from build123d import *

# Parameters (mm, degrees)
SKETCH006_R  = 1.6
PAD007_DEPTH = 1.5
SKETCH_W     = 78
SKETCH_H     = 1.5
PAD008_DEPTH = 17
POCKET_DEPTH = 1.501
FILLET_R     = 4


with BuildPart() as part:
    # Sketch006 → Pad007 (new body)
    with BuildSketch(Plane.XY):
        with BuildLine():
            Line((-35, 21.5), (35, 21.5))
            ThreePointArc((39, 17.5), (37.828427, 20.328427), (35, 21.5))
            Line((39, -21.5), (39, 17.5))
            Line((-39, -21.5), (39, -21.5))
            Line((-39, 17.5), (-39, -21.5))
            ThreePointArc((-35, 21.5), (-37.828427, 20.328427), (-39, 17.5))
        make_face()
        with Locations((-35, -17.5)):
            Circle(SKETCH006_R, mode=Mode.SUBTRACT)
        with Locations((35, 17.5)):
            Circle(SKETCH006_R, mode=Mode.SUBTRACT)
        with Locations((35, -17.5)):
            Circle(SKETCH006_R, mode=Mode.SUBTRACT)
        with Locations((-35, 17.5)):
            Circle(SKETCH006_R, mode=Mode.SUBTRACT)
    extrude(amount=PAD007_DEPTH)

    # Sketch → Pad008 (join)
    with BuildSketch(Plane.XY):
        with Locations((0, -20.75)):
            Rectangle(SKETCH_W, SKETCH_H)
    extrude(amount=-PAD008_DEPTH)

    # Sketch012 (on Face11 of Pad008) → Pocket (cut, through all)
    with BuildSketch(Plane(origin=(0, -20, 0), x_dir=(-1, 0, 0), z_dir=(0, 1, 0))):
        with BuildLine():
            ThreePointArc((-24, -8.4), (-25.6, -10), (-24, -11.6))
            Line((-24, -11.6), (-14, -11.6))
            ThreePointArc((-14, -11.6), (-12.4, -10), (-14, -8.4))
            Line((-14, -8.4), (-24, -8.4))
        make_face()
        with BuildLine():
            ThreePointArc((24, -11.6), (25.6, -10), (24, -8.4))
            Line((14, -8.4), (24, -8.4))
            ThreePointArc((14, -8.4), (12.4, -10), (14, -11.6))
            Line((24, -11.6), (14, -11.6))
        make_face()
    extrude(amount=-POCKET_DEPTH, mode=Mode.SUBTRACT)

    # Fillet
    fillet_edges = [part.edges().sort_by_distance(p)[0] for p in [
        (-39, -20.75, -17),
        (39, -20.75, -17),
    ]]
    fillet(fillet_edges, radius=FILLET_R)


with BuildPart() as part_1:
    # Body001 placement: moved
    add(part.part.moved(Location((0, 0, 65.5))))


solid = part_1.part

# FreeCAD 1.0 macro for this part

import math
import FreeCAD as App
import Part
import Sketcher

V = App.Vector
Q = App.Units.Quantity


def edges_at(feature, points):
    """Names of the edges that pass closest to the given points."""
    edges = feature.Shape.Edges
    near = lambda p: min(range(len(edges)), key=lambda i: edges[i].distToShape(Part.Vertex(*p))[0])
    return sorted({f"Edge{near(p) + 1}" for p in points})

doc = App.newDocument("Part")
params = doc.addObject("Spreadsheet::Sheet", "Params")
for row, (alias, value) in enumerate([
    ("sketch1_radius", "4 mm"),
    ("sketch1_diameter", "3.2 mm"),
    ("sketch1_width", "70 mm"),
    ("sketch1_height", "39 mm"),
    ("pad1_length", "1.5 mm"),
    ("sketch2_width", "78 mm"),
    ("sketch2_height", "1.5 mm"),
    ("pad2_length", "17 mm"),
    ("sketch3_radius", "1.6 mm"),
    ("sketch3_width", "10 mm"),
    ("fillet_radius", "4 mm"),
], start=1):
    params.set(f"A{row}", alias)
    params.set(f"B{row}", "=" + value)
    params.setAlias(f"B{row}", alias)

body = doc.addObject("PartDesign::Body", "Body")

# Sketch on XY plane
sketch1 = body.newObject("Sketcher::SketchObject", "Sketch")
sketch1.AttachmentSupport = (doc.getObject("XY_Plane"), [""])
sketch1.MapMode = "FlatFace"
sketch1.addGeometry([
    Part.LineSegment(V(35, 21.5, 0), V(-35, 21.5, 0)),  # 0
    Part.ArcOfCircle(Part.Circle(V(-35, 17.5, 0), V(0, 0, 1), 4), math.radians(90), math.radians(180)),  # 1
    Part.LineSegment(V(-39, 17.5, 0), V(-39, -21.5, 0)),  # 2
    Part.LineSegment(V(-39, -21.5, 0), V(39, -21.5, 0)),  # 3
    Part.LineSegment(V(39, -21.5, 0), V(39, 17.5, 0)),  # 4
    Part.ArcOfCircle(Part.Circle(V(35, 17.5, 0), V(0, 0, 1), 4), math.radians(0), math.radians(90)),  # 5
    Part.Circle(V(35, -17.5, 0), V(0, 0, 1), 1.6),  # 6
    Part.Circle(V(-35, -17.5, 0), V(0, 0, 1), 1.6),  # 7
    Part.Circle(V(35, 17.5, 0), V(0, 0, 1), 1.6),  # 8
    Part.Circle(V(-35, 17.5, 0), V(0, 0, 1), 1.6),  # 9
], False)
sketch1.addConstraint([
    Sketcher.Constraint("Tangent", 0, 2, 1, 1),
    Sketcher.Constraint("Tangent", 1, 2, 2, 1),
    Sketcher.Constraint("Coincident", 2, 2, 3, 1),
    Sketcher.Constraint("Coincident", 3, 2, 4, 1),
    Sketcher.Constraint("Tangent", 4, 2, 5, 1),
    Sketcher.Constraint("Tangent", 5, 2, 0, 1),
    Sketcher.Constraint("Horizontal", 0),
    Sketcher.Constraint("Vertical", 2),
    Sketcher.Constraint("Horizontal", 3),
    Sketcher.Constraint("Vertical", 4),
    Sketcher.Constraint("Coincident", 8, 3, 5, 3),
    Sketcher.Constraint("Coincident", 9, 3, 1, 3),
    Sketcher.Constraint("Equal", 1, 5),
    Sketcher.Constraint("Equal", 6, 7),
    Sketcher.Constraint("Equal", 7, 8),
    Sketcher.Constraint("Equal", 8, 9),
    Sketcher.Constraint("Symmetric", 1, 3, 6, 3, -1, 1),
    Sketcher.Constraint("Symmetric", 5, 3, 7, 3, -1, 1),
    Sketcher.Constraint("Vertical", 5, 3, 6, 3),
    Sketcher.Constraint("Radius", 1, Q("4 mm")),
    Sketcher.Constraint("Diameter", 6, Q("3.2 mm")),
    Sketcher.Constraint("DistanceX", 0, 2, 0, 1, Q("70 mm")),
    Sketcher.Constraint("DistanceY", 2, 2, 2, 1, Q("39 mm")),
    Sketcher.Constraint("DistanceY", 6, 3, 5, 3, Q("35 mm")),
])
sketch1.setExpression("Constraints[19]", "Params.sketch1_radius")
sketch1.setExpression("Constraints[20]", "Params.sketch1_diameter")
sketch1.setExpression("Constraints[21]", "Params.sketch1_width")
sketch1.setExpression("Constraints[22]", "Params.sketch1_height")
pad1 = body.newObject("PartDesign::Pad", "Pad")
pad1.Profile = sketch1
pad1.setExpression("Length", "Params.pad1_length")

# Sketch on XY plane
sketch2 = body.newObject("Sketcher::SketchObject", "Sketch001")
sketch2.AttachmentSupport = (doc.getObject("XY_Plane"), [""])
sketch2.MapMode = "FlatFace"
sketch2.addGeometry([
    Part.LineSegment(V(-39, -20, 0), V(-39, -21.5, 0)),
    Part.LineSegment(V(-39, -21.5, 0), V(39, -21.5, 0)),
    Part.LineSegment(V(39, -21.5, 0), V(39, -20, 0)),
    Part.LineSegment(V(39, -20, 0), V(-39, -20, 0)),
], False)
sketch2.addConstraint([
    Sketcher.Constraint("Coincident", 0, 2, 1, 1),
    Sketcher.Constraint("Coincident", 1, 2, 2, 1),
    Sketcher.Constraint("Coincident", 2, 2, 3, 1),
    Sketcher.Constraint("Coincident", 3, 2, 0, 1),
    Sketcher.Constraint("Vertical", 0),
    Sketcher.Constraint("Horizontal", 1),
    Sketcher.Constraint("Vertical", 2),
    Sketcher.Constraint("Horizontal", 3),
    Sketcher.Constraint("DistanceX", 1, 1, 1, 2, Q("78 mm")),
    Sketcher.Constraint("DistanceY", 0, 2, 0, 1, Q("1.5 mm")),
    Sketcher.Constraint("DistanceX", 0, 2, -1, 1, Q("39 mm")),
    Sketcher.Constraint("DistanceY", 2, 2, -1, 1, Q("20 mm")),
])
sketch2.setExpression("Constraints[8]", "Params.sketch2_width")
sketch2.setExpression("Constraints[9]", "Params.sketch2_height")
pad2 = body.newObject("PartDesign::Pad", "Pad001")
pad2.Profile = sketch2
pad2.setExpression("Length", "Params.pad2_length")
pad2.Reversed = True

# Sketch on XZ plane
sketch3 = body.newObject("Sketcher::SketchObject", "Sketch002")
sketch3.AttachmentSupport = (doc.getObject("XZ_Plane"), [""])
sketch3.MapMode = "FlatFace"
sketch3.AttachmentOffset = App.Placement(V(0, 0, 20), App.Rotation())
sketch3.addGeometry([
    Part.ArcOfCircle(Part.Circle(V(24, -10, 0), V(0, 0, 1), 1.6), math.radians(-90), math.radians(90)),  # 0
    Part.LineSegment(V(24, -11.6, 0), V(14, -11.6, 0)),  # 1
    Part.ArcOfCircle(Part.Circle(V(14, -10, 0), V(0, 0, 1), 1.6), math.radians(90), math.radians(270)),  # 2
    Part.LineSegment(V(14, -8.4, 0), V(24, -8.4, 0)),  # 3
    Part.ArcOfCircle(Part.Circle(V(-24, -10, 0), V(0, 0, 1), 1.6), math.radians(90), math.radians(270)),  # 4
    Part.LineSegment(V(-24, -8.4, 0), V(-14, -8.4, 0)),  # 5
    Part.ArcOfCircle(Part.Circle(V(-14, -10, 0), V(0, 0, 1), 1.6), math.radians(-90), math.radians(90)),  # 6
    Part.LineSegment(V(-14, -11.6, 0), V(-24, -11.6, 0)),  # 7
], False)
sketch3.addConstraint([
    Sketcher.Constraint("Tangent", 0, 1, 1, 1),
    Sketcher.Constraint("Tangent", 1, 2, 2, 2),
    Sketcher.Constraint("Tangent", 2, 1, 3, 1),
    Sketcher.Constraint("Tangent", 3, 2, 0, 2),
    Sketcher.Constraint("Tangent", 4, 1, 5, 1),
    Sketcher.Constraint("Tangent", 5, 2, 6, 2),
    Sketcher.Constraint("Tangent", 6, 1, 7, 1),
    Sketcher.Constraint("Tangent", 7, 2, 4, 2),
    Sketcher.Constraint("Horizontal", 1),
    Sketcher.Constraint("Horizontal", 3),
    Sketcher.Constraint("Horizontal", 5),
    Sketcher.Constraint("Horizontal", 7),
    Sketcher.Constraint("Equal", 2, 4),
    Sketcher.Constraint("Symmetric", 0, 3, 4, 3, -2),
    Sketcher.Constraint("Equal", 3, 5),
    Sketcher.Constraint("Radius", 0, Q("1.6 mm")),
    Sketcher.Constraint("DistanceX", 1, 2, 1, 1, Q("10 mm")),
    Sketcher.Constraint("DistanceX", -1, 1, 0, 3, Q("24 mm")),
    Sketcher.Constraint("DistanceY", 0, 3, -1, 1, Q("10 mm")),
])
sketch3.setExpression("Constraints[15]", "Params.sketch3_radius")
sketch3.setExpression("Constraints[16]", "Params.sketch3_width")
pocket1 = body.newObject("PartDesign::Pocket", "Pocket")
pocket1.Profile = sketch3
pocket1.Type = "ThroughAll"
pocket1.Reversed = True
doc.recompute()

fillet = body.newObject("PartDesign::Fillet", "Fillet")
fillet.Base = (pocket1, edges_at(pocket1, [(-39, -20.75, -17), (39, -20.75, -17)]))
fillet.setExpression("Radius", "Params.fillet_radius")
body2 = doc.addObject("PartDesign::Body", "Body001")
doc.recompute()

body.Placement = App.Placement(V(0, 0, 65.5), App.Rotation(V(0, 0, 1), 0))
boolean = body2.newObject("PartDesign::Boolean", "Boolean")
boolean.Type = "Fuse"
boolean.addObjects([body])

doc.recompute()
